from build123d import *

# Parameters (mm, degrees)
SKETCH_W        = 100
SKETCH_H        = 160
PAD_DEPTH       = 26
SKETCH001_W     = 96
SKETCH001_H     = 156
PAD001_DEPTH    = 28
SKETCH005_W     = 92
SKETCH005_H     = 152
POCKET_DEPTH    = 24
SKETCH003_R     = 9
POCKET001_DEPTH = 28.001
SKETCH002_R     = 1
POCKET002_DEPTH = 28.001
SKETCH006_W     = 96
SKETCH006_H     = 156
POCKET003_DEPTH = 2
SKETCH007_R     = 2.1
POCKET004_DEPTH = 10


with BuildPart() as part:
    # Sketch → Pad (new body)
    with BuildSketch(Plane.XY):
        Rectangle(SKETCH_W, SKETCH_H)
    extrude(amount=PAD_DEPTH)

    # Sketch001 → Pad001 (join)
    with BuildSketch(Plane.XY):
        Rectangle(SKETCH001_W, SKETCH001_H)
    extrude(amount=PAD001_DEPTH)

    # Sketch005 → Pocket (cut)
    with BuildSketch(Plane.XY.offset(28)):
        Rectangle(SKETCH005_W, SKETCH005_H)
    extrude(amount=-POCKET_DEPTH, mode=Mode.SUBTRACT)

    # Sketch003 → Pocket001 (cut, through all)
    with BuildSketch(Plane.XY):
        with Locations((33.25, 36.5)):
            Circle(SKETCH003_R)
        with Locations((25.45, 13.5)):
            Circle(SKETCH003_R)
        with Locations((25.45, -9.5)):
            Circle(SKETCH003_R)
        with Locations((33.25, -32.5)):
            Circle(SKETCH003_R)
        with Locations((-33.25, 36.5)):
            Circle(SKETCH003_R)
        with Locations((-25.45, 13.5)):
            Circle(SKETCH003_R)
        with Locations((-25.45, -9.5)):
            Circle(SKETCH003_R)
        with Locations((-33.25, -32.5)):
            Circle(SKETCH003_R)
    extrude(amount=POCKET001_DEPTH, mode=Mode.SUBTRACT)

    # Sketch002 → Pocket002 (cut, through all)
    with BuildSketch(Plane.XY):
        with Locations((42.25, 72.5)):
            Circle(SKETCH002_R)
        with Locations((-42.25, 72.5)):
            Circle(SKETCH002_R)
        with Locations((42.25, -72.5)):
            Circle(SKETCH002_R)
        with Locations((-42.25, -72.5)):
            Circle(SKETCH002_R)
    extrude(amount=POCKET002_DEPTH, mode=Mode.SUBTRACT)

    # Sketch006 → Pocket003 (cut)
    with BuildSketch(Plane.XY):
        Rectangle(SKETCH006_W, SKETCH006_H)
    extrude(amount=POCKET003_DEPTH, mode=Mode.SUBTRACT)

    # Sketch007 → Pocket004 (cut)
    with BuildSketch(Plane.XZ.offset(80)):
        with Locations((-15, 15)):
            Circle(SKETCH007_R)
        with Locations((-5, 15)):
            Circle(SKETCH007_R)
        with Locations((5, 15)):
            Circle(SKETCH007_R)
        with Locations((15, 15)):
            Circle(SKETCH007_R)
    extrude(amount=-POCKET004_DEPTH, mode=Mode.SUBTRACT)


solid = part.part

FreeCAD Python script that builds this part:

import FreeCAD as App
import Part
import Sketcher

V = App.Vector
Q = App.Units.Quantity


def add_polygon(sketch, points):
    """Adds a closed chain of lines whose ends are joined by coincident constraints."""
    first, n = sketch.GeometryCount, len(points)
    for a, b in zip(points, points[1:] + points[:1]):
        sketch.addGeometry(Part.LineSegment(App.Vector(*a, 0), App.Vector(*b, 0)), False)
    for i in range(n):
        sketch.addConstraint(Sketcher.Constraint("Coincident", first + i, 2, first + (i + 1) % n, 1))

doc = App.newDocument("Part")
body = doc.addObject("PartDesign::Body", "Body")

sketch1 = body.newObject("Sketcher::SketchObject", "Sketch")
sketch1.AttachmentSupport = (doc.getObject("XY_Plane"), [""])
sketch1.MapMode = "FlatFace"
add_polygon(sketch1, [(-50, 80), (-50, -80), (50, -80), (50, 80)])
sketch1.addConstraint(Sketcher.Constraint("Vertical", 0))
sketch1.addConstraint(Sketcher.Constraint("Horizontal", 1))
sketch1.addConstraint(Sketcher.Constraint("Vertical", 2))
sketch1.addConstraint(Sketcher.Constraint("Horizontal", 3))
sketch1.addConstraint(Sketcher.Constraint("Symmetric", 0, 2, 2, 2, -1, 1))
sketch1.addConstraint(Sketcher.Constraint("DistanceX", 1, 1, 1, 2, Q("100 mm")))
sketch1.addConstraint(Sketcher.Constraint("DistanceY", 0, 2, 0, 1, Q("160 mm")))
pad1 = body.newObject("PartDesign::Pad", "Pad")
pad1.Profile = sketch1
pad1.Length = 26

sketch2 = body.newObject("Sketcher::SketchObject", "Sketch001")
sketch2.AttachmentSupport = (doc.getObject("XY_Plane"), [""])
sketch2.MapMode = "FlatFace"
add_polygon(sketch2, [(-48, 78), (-48, -78), (48, -78), (48, 78)])
sketch2.addConstraint(Sketcher.Constraint("Vertical", 0))
sketch2.addConstraint(Sketcher.Constraint("Horizontal", 1))
sketch2.addConstraint(Sketcher.Constraint("Vertical", 2))
sketch2.addConstraint(Sketcher.Constraint("Horizontal", 3))
sketch2.addConstraint(Sketcher.Constraint("Symmetric", 0, 2, 2, 2, -1, 1))
sketch2.addConstraint(Sketcher.Constraint("DistanceX", 1, 1, 1, 2, Q("96 mm")))
sketch2.addConstraint(Sketcher.Constraint("DistanceY", 0, 2, 0, 1, Q("156 mm")))
pad2 = body.newObject("PartDesign::Pad", "Pad001")
pad2.Profile = sketch2
pad2.Length = 28

sketch3 = body.newObject("Sketcher::SketchObject", "Sketch002")
sketch3.AttachmentSupport = (doc.getObject("XY_Plane"), [""])
sketch3.MapMode = "FlatFace"
sketch3.AttachmentOffset = App.Placement(V(0, 0, 28), App.Rotation())
add_polygon(sketch3, [(-46, 76), (-46, -76), (46, -76), (46, 76)])
sketch3.addConstraint(Sketcher.Constraint("Vertical", 0))
sketch3.addConstraint(Sketcher.Constraint("Horizontal", 1))
sketch3.addConstraint(Sketcher.Constraint("Vertical", 2))
sketch3.addConstraint(Sketcher.Constraint("Horizontal", 3))
sketch3.addConstraint(Sketcher.Constraint("Symmetric", 0, 2, 2, 2, -1, 1))
sketch3.addConstraint(Sketcher.Constraint("DistanceX", 1, 1, 1, 2, Q("92 mm")))
sketch3.addConstraint(Sketcher.Constraint("DistanceY", 0, 2, 0, 1, Q("152 mm")))
pocket1 = body.newObject("PartDesign::Pocket", "Pocket")
pocket1.Profile = sketch3
pocket1.Length = 24

sketch4 = body.newObject("Sketcher::SketchObject", "Sketch003")
sketch4.AttachmentSupport = (doc.getObject("XY_Plane"), [""])
sketch4.MapMode = "FlatFace"
sketch4.addGeometry(Part.Circle(V(33, 36, 0), V(0, 0, 1), 9), False)
sketch4.addGeometry(Part.Circle(V(25, 14, 0), V(0, 0, 1), 9), False)
sketch4.addGeometry(Part.Circle(V(25, -10, 0), V(0, 0, 1), 9), False)
sketch4.addGeometry(Part.Circle(V(33, -32, 0), V(0, 0, 1), 9), False)
sketch4.addGeometry(Part.Circle(V(-33, 36, 0), V(0, 0, 1), 9), False)
sketch4.addGeometry(Part.Circle(V(-25, 14, 0), V(0, 0, 1), 9), False)
sketch4.addGeometry(Part.Circle(V(-25, -10, 0), V(0, 0, 1), 9), False)
sketch4.addGeometry(Part.Circle(V(-33, -32, 0), V(0, 0, 1), 9), False)
sketch4.addConstraint(Sketcher.Constraint("Equal", 0, 1))
sketch4.addConstraint(Sketcher.Constraint("Equal", 1, 2))
sketch4.addConstraint(Sketcher.Constraint("Equal", 2, 3))
sketch4.addConstraint(Sketcher.Constraint("Equal", 3, 4))
sketch4.addConstraint(Sketcher.Constraint("Equal", 4, 5))
sketch4.addConstraint(Sketcher.Constraint("Equal", 5, 6))
sketch4.addConstraint(Sketcher.Constraint("Equal", 6, 7))
sketch4.addConstraint(Sketcher.Constraint("Symmetric", 0, 3, 4, 3, -2))
sketch4.addConstraint(Sketcher.Constraint("Symmetric", 1, 3, 5, 3, -2))
sketch4.addConstraint(Sketcher.Constraint("Symmetric", 2, 3, 6, 3, -2))
sketch4.addConstraint(Sketcher.Constraint("Symmetric", 3, 3, 7, 3, -2))
sketch4.addConstraint(Sketcher.Constraint("Vertical", 1, 3, 2, 3))
sketch4.addConstraint(Sketcher.Constraint("Vertical", 0, 3, 3, 3))
sketch4.addConstraint(Sketcher.Constraint("Diameter", 0, Q("18 mm")))
sketch4.addConstraint(Sketcher.Constraint("DistanceY", 1, 3, 0, 3, Q("23 mm")))
sketch4.addConstraint(Sketcher.Constraint("DistanceY", 2, 3, 1, 3, Q("23 mm")))
sketch4.addConstraint(Sketcher.Constraint("DistanceY", 3, 3, 2, 3, Q("23 mm")))
sketch4.addConstraint(Sketcher.Constraint("DistanceY", -1, 1, 0, 3, Q("36.5 mm")))
sketch4.addConstraint(Sketcher.Constraint("DistanceX", 1, 3, 0, 3, Q("7.8 mm")))
sketch4.addConstraint(Sketcher.Constraint("DistanceX", 4, 3, 1, 3, Q("58.7 mm")))
pocket2 = body.newObject("PartDesign::Pocket", "Pocket001")
pocket2.Profile = sketch4
pocket2.Type = "ThroughAll"
pocket2.Reversed = True

sketch5 = body.newObject("Sketcher::SketchObject", "Sketch004")
sketch5.AttachmentSupport = (doc.getObject("XY_Plane"), [""])
sketch5.MapMode = "FlatFace"
sketch5.addGeometry(Part.Circle(V(42.2, 72.5, 0), V(0, 0, 1), 1), False)
sketch5.addGeometry(Part.Circle(V(-42.2, 72.5, 0), V(0, 0, 1), 1), False)
sketch5.addGeometry(Part.Circle(V(42.2, -72.5, 0), V(0, 0, 1), 1), False)
sketch5.addGeometry(Part.Circle(V(-42.2, -72.5, 0), V(0, 0, 1), 1), False)
sketch5.addConstraint(Sketcher.Constraint("Equal", 0, 1))
sketch5.addConstraint(Sketcher.Constraint("Equal", 1, 2))
sketch5.addConstraint(Sketcher.Constraint("Equal", 2, 3))
sketch5.addConstraint(Sketcher.Constraint("Symmetric", 1, 3, 2, 3, -1, 1))
sketch5.addConstraint(Sketcher.Constraint("Symmetric", 0, 3, 3, 3, -1, 1))
sketch5.addConstraint(Sketcher.Constraint("Symmetric", 0, 3, 1, 3, -2))
sketch5.addConstraint(Sketcher.Constraint("Diameter", 0, Q("2 mm")))
sketch5.addConstraint(Sketcher.Constraint("DistanceY", 2, 3, 0, 3, Q("145 mm")))
sketch5.addConstraint(Sketcher.Constraint("DistanceX", 1, 3, 0, 3, Q("84.5 mm")))
pocket3 = body.newObject("PartDesign::Pocket", "Pocket002")
pocket3.Profile = sketch5
pocket3.Type = "ThroughAll"
pocket3.Reversed = True

sketch6 = body.newObject("Sketcher::SketchObject", "Sketch005")
sketch6.AttachmentSupport = (doc.getObject("XY_Plane"), [""])
sketch6.MapMode = "FlatFace"
add_polygon(sketch6, [(-48, 78), (-48, -78), (48, -78), (48, 78)])
sketch6.addConstraint(Sketcher.Constraint("Vertical", 0))
sketch6.addConstraint(Sketcher.Constraint("Horizontal", 1))
sketch6.addConstraint(Sketcher.Constraint("Vertical", 2))
sketch6.addConstraint(Sketcher.Constraint("Horizontal", 3))
sketch6.addConstraint(Sketcher.Constraint("Symmetric", 0, 2, 2, 2, -1, 1))
sketch6.addConstraint(Sketcher.Constraint("DistanceX", 1, 1, 1, 2, Q("96 mm")))
sketch6.addConstraint(Sketcher.Constraint("DistanceY", 0, 2, 0, 1, Q("156 mm")))
pocket4 = body.newObject("PartDesign::Pocket", "Pocket003")
pocket4.Profile = sketch6
pocket4.Length = 2
pocket4.Reversed = True

sketch7 = body.newObject("Sketcher::SketchObject", "Sketch006")
sketch7.AttachmentSupport = (doc.getObject("XZ_Plane"), [""])
sketch7.MapMode = "FlatFace"
sketch7.AttachmentOffset = App.Placement(V(0, 0, 80), App.Rotation())
sketch7.addGeometry(Part.Circle(V(-15, 15, 0), V(0, 0, 1), 2.1), False)
sketch7.addGeometry(Part.Circle(V(-5, 15, 0), V(0, 0, 1), 2.1), False)
sketch7.addGeometry(Part.Circle(V(5, 15, 0), V(0, 0, 1), 2.1), False)
sketch7.addGeometry(Part.Circle(V(15, 15, 0), V(0, 0, 1), 2.1), False)
sketch7.addConstraint(Sketcher.Constraint("Equal", 0, 1))
sketch7.addConstraint(Sketcher.Constraint("Equal", 1, 2))
sketch7.addConstraint(Sketcher.Constraint("Equal", 2, 3))
sketch7.addConstraint(Sketcher.Constraint("Symmetric", 1, 3, 2, 3, -2))
sketch7.addConstraint(Sketcher.Constraint("Symmetric", 0, 3, 3, 3, -2))
sketch7.addConstraint(Sketcher.Constraint("Horizontal", 0, 3, 1, 3))
sketch7.addConstraint(Sketcher.Constraint("Diameter", 0, Q("4.2 mm")))
sketch7.addConstraint(Sketcher.Constraint("DistanceX", 0, 3, -1, 1, Q("15 mm")))
sketch7.addConstraint(Sketcher.Constraint("DistanceY", -1, 1, 0, 3, Q("15 mm")))
sketch7.addConstraint(Sketcher.Constraint("DistanceX", 1, 3, -1, 1, Q("5 mm")))
pocket5 = body.newObject("PartDesign::Pocket", "Pocket004")
pocket5.Profile = sketch7
pocket5.Length = 10

doc.recompute()
